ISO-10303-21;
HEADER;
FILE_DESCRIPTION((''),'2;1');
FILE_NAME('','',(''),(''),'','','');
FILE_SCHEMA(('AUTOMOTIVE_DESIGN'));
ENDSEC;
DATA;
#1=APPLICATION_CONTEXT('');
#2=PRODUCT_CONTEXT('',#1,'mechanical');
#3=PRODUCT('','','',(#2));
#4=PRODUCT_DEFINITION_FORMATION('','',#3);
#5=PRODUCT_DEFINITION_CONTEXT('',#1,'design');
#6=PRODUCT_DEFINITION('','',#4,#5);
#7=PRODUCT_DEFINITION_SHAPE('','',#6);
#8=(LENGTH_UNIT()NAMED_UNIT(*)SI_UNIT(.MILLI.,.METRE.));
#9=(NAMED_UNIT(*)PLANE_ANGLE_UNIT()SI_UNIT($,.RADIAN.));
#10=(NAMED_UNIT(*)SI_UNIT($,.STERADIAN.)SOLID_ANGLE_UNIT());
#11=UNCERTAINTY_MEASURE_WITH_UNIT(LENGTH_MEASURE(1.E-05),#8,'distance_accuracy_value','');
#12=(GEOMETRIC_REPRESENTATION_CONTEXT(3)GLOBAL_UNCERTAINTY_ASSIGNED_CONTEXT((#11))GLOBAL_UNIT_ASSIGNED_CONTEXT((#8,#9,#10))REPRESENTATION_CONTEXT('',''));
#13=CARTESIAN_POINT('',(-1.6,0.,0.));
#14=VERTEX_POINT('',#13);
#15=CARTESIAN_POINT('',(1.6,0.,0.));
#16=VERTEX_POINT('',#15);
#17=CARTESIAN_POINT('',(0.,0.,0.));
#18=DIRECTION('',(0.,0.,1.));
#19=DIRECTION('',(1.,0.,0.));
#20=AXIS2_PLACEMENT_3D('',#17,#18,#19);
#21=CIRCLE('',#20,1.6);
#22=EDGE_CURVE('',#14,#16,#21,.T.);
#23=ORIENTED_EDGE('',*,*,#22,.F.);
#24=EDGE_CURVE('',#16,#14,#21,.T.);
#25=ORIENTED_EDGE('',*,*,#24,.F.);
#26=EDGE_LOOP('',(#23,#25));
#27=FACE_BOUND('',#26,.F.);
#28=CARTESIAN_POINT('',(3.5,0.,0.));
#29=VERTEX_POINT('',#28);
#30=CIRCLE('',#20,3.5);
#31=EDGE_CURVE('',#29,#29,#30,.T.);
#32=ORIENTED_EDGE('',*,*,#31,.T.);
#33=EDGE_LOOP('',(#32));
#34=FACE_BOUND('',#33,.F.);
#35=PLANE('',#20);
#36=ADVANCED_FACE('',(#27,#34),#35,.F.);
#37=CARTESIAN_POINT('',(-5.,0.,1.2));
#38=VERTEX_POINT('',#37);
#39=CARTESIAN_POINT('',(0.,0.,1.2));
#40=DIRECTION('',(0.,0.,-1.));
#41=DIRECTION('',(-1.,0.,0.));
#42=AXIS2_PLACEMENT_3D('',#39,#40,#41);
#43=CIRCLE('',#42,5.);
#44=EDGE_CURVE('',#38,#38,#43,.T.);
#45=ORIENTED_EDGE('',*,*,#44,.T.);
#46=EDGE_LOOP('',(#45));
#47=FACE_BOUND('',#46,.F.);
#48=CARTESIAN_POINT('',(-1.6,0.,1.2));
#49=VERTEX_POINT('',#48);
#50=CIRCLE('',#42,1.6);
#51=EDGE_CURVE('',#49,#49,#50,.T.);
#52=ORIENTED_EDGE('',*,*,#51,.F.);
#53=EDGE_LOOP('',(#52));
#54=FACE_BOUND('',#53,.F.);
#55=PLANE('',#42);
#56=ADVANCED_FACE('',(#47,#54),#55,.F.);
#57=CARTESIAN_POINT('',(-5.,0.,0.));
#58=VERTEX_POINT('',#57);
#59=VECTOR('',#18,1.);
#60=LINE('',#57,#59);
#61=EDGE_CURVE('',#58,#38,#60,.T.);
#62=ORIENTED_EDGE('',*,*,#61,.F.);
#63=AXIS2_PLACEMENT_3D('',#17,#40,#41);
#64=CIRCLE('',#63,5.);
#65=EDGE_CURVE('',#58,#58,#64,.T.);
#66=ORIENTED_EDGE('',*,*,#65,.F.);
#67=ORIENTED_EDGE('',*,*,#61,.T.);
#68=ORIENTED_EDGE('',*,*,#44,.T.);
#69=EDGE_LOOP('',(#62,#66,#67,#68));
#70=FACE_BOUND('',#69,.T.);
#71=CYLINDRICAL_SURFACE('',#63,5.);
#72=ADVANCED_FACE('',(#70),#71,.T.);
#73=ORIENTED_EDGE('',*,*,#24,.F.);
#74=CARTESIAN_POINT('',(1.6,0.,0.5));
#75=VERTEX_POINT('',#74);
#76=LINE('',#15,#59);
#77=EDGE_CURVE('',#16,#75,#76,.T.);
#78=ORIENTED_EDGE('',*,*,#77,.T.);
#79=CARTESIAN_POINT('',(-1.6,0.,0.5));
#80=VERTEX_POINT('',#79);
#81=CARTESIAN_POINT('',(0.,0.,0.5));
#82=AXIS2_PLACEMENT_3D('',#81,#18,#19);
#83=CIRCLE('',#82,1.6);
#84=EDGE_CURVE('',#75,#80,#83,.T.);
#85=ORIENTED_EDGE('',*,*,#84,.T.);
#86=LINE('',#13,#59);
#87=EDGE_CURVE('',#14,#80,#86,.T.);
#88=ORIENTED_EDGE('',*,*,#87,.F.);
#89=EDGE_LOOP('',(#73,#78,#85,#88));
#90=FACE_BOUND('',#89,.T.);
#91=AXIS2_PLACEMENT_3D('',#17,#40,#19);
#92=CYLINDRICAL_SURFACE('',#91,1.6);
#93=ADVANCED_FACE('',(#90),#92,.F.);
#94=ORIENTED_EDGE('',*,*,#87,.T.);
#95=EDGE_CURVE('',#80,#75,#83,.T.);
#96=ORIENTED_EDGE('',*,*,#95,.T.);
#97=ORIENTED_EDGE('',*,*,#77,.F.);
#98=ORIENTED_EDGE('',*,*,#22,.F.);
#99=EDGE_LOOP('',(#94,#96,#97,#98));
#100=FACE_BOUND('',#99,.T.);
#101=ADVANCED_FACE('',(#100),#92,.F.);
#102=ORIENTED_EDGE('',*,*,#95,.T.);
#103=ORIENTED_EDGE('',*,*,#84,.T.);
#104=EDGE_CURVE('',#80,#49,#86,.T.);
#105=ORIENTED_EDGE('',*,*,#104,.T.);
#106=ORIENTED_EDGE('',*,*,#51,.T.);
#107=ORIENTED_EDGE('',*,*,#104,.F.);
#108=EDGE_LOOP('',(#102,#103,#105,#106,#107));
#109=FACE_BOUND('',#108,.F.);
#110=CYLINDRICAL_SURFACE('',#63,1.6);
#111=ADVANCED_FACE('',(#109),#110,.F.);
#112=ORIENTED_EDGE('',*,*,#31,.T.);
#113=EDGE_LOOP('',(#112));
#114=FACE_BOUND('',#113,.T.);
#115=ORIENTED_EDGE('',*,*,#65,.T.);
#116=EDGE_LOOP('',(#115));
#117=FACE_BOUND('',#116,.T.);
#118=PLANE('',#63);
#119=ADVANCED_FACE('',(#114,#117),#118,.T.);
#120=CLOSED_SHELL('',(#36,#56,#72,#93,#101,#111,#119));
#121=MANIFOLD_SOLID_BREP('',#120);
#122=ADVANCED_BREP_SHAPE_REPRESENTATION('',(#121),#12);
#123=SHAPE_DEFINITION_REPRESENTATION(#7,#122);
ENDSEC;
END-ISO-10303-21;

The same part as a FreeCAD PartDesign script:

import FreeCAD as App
import Part
import Sketcher

V = App.Vector

doc = App.newDocument("Part")
body = doc.addObject("PartDesign::Body", "Body")

# Sketch on XY plane
sketch1 = body.newObject("Sketcher::SketchObject", "Sketch")
sketch1.AttachmentSupport = (doc.getObject("XY_Plane"), [""])
sketch1.MapMode = "FlatFace"
sketch1.addGeometry([
    Part.Circle(V(0, 0, 0), V(0, 0, 1), 3.5),
    Part.Circle(V(0, 0, 0), V(0, 0, 1), 1.6),
], False)
sketch1.addConstraint([
    Sketcher.Constraint("Coincident", 0, 3, -1, 1),
    Sketcher.Constraint("Coincident", 1, 3, -1, 1),
    Sketcher.Constraint("Diameter", 0, 7.0),
    Sketcher.Constraint("Diameter", 1, 3.2),
])
pad1 = body.newObject("PartDesign::Pad", "Pad")
pad1.Profile = sketch1
pad1.Length = 0.5

# Sketch on XY plane
sketch2 = body.newObject("Sketcher::SketchObject", "Sketch001")
sketch2.AttachmentSupport = (doc.getObject("XY_Plane"), [""])
sketch2.MapMode = "FlatFace"
sketch2.addGeometry([
    Part.Circle(V(0, 0, 0), V(0, 0, 1), 5),
    Part.Circle(V(0, 0, 0), V(0, 0, 1), 1.6),
], False)
sketch2.addConstraint([
    Sketcher.Constraint("Coincident", 0, 3, -1, 1),
    Sketcher.Constraint("Coincident", 1, 3, -1, 1),
    Sketcher.Constraint("Diameter", 0, 10.0),
    Sketcher.Constraint("Diameter", 1, 3.2),
])
pad2 = body.newObject("PartDesign::Pad", "Pad001")
pad2.Profile = sketch2
pad2.Length = 1.2

doc.recompute()
